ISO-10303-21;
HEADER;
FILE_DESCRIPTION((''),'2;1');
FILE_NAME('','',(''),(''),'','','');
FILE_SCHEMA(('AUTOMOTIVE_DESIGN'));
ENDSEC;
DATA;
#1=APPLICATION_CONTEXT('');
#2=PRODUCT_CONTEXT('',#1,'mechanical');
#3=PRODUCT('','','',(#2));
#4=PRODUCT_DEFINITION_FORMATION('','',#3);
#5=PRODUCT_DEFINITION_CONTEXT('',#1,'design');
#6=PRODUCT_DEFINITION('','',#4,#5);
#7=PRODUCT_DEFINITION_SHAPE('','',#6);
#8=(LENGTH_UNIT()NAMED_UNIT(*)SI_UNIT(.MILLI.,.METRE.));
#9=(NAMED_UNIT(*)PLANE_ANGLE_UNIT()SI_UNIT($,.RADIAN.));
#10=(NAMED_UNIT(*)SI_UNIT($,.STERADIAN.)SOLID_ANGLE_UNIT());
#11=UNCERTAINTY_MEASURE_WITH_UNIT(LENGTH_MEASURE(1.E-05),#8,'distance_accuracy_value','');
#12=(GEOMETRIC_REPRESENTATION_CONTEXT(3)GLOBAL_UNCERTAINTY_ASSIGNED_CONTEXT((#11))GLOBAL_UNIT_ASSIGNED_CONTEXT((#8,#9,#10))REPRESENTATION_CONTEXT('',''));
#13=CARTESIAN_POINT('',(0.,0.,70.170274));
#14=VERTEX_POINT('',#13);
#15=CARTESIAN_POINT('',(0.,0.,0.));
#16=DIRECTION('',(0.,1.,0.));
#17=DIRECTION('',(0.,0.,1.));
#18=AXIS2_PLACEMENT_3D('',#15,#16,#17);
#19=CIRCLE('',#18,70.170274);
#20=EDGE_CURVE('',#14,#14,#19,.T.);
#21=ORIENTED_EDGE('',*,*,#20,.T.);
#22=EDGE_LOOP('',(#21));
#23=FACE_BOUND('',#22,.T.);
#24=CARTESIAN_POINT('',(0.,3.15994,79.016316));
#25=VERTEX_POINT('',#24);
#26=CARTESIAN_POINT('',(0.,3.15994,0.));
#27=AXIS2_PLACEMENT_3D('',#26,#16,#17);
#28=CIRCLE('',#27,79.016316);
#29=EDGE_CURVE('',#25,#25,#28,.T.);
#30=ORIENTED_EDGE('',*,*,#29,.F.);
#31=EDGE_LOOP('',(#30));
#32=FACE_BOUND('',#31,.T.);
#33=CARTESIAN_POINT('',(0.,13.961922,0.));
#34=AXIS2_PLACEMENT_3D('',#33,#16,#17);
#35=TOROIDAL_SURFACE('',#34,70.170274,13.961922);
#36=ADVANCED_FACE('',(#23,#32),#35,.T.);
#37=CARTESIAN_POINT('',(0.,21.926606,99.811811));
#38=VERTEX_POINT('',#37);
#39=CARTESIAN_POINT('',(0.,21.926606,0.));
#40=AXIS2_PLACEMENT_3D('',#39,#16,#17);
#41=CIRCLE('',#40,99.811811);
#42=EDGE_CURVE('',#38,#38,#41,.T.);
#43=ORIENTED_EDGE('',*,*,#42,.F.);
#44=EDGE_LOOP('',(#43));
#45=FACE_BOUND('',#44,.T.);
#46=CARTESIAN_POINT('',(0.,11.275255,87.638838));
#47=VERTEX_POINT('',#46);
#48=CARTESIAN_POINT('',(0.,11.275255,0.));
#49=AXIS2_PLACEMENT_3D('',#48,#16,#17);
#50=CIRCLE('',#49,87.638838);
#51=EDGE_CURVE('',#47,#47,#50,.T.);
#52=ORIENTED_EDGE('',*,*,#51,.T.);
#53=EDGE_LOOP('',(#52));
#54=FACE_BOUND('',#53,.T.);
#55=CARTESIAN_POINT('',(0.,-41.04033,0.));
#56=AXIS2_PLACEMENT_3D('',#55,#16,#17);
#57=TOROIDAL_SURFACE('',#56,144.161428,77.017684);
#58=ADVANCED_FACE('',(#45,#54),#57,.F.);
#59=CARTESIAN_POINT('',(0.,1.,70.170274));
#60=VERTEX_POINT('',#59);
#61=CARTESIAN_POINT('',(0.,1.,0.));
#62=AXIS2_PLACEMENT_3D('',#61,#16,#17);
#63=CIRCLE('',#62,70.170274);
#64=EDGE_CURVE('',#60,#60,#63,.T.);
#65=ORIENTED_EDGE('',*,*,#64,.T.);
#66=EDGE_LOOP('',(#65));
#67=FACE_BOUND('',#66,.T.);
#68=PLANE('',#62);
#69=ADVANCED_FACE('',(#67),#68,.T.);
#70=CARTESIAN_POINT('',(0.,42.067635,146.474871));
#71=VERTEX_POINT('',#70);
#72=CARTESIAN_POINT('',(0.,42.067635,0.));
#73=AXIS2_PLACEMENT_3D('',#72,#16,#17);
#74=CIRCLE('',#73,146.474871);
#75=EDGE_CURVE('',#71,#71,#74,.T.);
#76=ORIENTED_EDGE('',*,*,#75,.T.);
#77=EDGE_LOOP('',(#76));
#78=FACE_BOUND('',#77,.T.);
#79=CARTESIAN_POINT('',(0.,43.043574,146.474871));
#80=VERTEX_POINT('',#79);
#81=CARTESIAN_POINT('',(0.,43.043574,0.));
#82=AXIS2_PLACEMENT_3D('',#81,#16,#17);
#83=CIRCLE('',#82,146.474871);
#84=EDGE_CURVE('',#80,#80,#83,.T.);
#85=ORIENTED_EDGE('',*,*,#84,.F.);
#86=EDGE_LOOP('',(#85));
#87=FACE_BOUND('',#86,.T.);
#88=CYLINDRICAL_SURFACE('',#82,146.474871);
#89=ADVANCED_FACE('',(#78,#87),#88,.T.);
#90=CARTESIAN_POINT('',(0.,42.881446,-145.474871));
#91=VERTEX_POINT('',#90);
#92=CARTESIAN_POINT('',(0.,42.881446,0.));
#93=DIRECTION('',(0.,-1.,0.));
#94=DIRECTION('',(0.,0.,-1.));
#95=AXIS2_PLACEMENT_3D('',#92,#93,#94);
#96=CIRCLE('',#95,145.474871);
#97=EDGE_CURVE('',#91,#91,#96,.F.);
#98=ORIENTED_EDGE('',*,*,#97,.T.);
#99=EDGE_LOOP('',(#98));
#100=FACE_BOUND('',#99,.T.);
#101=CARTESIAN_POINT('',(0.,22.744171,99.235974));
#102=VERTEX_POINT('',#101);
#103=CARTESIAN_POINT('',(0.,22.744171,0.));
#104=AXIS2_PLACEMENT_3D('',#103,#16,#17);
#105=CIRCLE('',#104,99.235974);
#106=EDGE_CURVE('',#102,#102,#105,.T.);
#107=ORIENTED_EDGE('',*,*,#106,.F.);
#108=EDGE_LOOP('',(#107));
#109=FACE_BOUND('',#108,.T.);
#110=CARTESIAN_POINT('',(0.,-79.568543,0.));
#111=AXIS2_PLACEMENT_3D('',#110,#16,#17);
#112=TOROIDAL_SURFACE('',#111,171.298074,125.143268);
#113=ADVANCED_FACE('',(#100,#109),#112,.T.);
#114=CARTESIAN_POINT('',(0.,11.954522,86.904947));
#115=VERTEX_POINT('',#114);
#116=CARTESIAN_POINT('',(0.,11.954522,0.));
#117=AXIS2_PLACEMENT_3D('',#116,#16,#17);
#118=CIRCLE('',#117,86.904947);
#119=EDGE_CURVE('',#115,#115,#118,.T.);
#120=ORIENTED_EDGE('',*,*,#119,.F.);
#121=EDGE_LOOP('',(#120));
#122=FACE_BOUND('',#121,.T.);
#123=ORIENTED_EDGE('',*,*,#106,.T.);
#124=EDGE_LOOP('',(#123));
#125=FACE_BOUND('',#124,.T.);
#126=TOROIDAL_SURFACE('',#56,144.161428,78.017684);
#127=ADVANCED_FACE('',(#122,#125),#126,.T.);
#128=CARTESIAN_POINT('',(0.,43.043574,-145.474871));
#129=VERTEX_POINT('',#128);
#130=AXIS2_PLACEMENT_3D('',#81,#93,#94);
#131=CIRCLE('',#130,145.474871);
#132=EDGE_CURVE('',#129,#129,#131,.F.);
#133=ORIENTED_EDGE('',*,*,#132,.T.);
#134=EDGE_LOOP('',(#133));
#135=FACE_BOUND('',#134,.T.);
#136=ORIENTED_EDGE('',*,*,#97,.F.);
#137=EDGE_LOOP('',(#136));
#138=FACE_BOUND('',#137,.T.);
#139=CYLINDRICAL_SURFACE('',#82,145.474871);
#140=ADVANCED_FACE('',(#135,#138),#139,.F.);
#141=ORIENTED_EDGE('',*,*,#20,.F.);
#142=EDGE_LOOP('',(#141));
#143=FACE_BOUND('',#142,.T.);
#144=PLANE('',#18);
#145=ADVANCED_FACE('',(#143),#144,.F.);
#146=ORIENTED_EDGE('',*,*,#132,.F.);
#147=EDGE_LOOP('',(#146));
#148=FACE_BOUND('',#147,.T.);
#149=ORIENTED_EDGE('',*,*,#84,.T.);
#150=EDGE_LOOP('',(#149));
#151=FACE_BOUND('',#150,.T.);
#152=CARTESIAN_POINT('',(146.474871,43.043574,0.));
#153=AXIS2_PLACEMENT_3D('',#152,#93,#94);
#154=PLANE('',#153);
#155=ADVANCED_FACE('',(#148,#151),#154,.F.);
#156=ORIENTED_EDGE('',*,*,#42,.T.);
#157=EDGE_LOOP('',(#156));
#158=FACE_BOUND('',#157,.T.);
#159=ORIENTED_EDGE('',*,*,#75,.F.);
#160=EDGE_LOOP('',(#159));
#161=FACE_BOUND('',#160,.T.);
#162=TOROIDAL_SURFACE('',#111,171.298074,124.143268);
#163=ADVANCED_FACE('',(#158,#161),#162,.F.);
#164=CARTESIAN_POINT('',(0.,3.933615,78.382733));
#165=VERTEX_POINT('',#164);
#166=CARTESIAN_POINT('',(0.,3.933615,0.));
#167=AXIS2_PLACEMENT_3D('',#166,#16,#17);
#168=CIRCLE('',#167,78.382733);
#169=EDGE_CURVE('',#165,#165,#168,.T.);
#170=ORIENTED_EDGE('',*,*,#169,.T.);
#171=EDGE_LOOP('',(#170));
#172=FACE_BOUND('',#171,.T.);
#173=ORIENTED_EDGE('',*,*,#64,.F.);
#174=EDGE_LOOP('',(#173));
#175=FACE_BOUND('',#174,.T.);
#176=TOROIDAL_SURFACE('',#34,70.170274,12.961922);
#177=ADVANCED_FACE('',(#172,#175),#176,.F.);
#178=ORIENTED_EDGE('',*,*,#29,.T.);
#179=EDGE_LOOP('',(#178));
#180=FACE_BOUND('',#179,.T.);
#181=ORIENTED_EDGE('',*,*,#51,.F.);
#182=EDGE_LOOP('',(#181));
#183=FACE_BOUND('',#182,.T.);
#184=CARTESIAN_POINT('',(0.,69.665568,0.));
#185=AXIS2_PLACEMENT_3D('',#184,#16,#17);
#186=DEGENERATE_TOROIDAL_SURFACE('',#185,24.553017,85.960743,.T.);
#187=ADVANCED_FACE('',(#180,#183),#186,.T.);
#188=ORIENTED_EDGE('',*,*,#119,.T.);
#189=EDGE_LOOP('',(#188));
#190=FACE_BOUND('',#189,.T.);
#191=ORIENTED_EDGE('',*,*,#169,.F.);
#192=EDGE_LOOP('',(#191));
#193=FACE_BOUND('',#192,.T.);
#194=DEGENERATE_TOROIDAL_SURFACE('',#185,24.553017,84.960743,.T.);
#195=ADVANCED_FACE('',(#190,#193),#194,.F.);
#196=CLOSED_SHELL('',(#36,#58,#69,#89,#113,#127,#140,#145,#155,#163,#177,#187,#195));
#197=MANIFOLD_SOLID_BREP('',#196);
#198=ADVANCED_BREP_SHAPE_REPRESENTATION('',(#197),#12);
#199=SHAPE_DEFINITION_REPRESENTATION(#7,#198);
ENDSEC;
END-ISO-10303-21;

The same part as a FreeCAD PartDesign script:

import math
import FreeCAD as App
import Part
import Sketcher
from FreeCAD import Vector


def faces_at(feature, points):
    """Names of the faces that lie closest to the given points."""
    faces = feature.Shape.Faces
    near = lambda p: min(range(len(faces)), key=lambda i: faces[i].distToShape(Part.Vertex(*p))[0])
    return sorted({f"Face{near(p) + 1}" for p in points})

doc = App.newDocument("Part")
body = doc.addObject("PartDesign::Body", "Body")

# Sketch on XY plane
sketch1 = doc.addObject("Sketcher::SketchObject", "Sketch")
body.addObject(sketch1)
sketch1.AttachmentSupport = (doc.XY_Plane, [""])
sketch1.MapMode = "FlatFace"
sketch1.addGeometry([
    Part.LineSegment(Vector(0, 0, 0), Vector(70.2, 0, 0)),  # 0
    Part.ArcOfCircle(Part.Circle(Vector(70.2, 14, 0), Vector(0, 0, 1), 14), math.radians(-90), math.radians(-51)),  # 1
    Part.ArcOfCircle(Part.Circle(Vector(24.6, 69.7, 0), Vector(0, 0, 1), 86), math.radians(-50.69), math.radians(-42.79)),  # 2
    Part.ArcOfCircle(Part.Circle(Vector(144.2, -41, 0), Vector(0, 0, 1), 77), math.radians(125.16), math.radians(137.21)),  # 3
    Part.ArcOfCircle(Part.Circle(Vector(171.3, -79.6, 0), Vector(0, 0, 1), 124.1), math.radians(102), math.radians(125)),  # 4
    Part.LineSegment(Vector(146.5, 42.1, 0), Vector(146.5, 43, 0)),  # 5
    Part.LineSegment(Vector(146.5, 43, 0), Vector(0, 43, 0)),  # 6
    Part.LineSegment(Vector(0, 43, 0), Vector(0, 0, 0)),  # 7
], False)
sketch1.addConstraint([
    Sketcher.Constraint("Tangent", 0, 2, 1, 1),
    Sketcher.Constraint("Tangent", 1, 2, 2, 1),
    Sketcher.Constraint("Tangent", 2, 2, 3, 2),
    Sketcher.Constraint("Tangent", 3, 1, 4, 2),
    Sketcher.Constraint("Coincident", 4, 1, 5, 1),
    Sketcher.Constraint("Coincident", 5, 2, 6, 1),
    Sketcher.Constraint("Coincident", 6, 2, 7, 1),
    Sketcher.Constraint("Coincident", 7, 2, 0, 1),
    Sketcher.Constraint("Horizontal", 0),
    Sketcher.Constraint("Vertical", 5),
    Sketcher.Constraint("Horizontal", 6),
    Sketcher.Constraint("Vertical", 7),
    Sketcher.Constraint("Coincident", 7, 2, -1, 1),
    Sketcher.Constraint("Radius", 4, 124.143268),
    Sketcher.Constraint("Radius", 1, 13.961922),
    Sketcher.Constraint("Radius", 2, 85.960743),
    Sketcher.Constraint("Radius", 3, 77.017684),
    Sketcher.Constraint("DistanceX", 6, 2, 6, 1, 146.474871),
    Sketcher.Constraint("DistanceY", 5, 1, 5, 2, 0.975939),
    Sketcher.Constraint("DistanceX", 1, 3, 4, 3, 101.1278),
    Sketcher.Constraint("DistanceX", 2, 3, 1, 2, 54.463299),
    Sketcher.Constraint("DistanceX", 0, 1, 0, 2, 70.170274),
    Sketcher.Constraint("DistanceY", 7, 2, 7, 1, 43.043574),
])
revolution = doc.addObject("PartDesign::Revolution", "Revolution")
body.addObject(revolution)
revolution.Profile = sketch1
revolution.ReferenceAxis = (sketch1, ["V_Axis"])
revolution.Angle = 360
doc.recompute()

thickness = doc.addObject("PartDesign::Thickness", "Thickness")
body.addObject(thickness)
thickness.Base = (revolution, faces_at(revolution, [(0, 43.044, 0)]))
thickness.Value = 1
thickness.Reversed = True
thickness.Join = "Intersection"

doc.recompute()
